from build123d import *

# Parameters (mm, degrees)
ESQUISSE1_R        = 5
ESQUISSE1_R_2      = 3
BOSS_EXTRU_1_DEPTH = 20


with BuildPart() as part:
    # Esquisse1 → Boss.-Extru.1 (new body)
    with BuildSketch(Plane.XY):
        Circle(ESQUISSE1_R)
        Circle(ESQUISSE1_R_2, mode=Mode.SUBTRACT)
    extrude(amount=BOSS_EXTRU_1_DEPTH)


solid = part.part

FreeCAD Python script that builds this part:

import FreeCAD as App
import Part
import Sketcher

V = App.Vector

doc = App.newDocument("Part")
body = doc.addObject("PartDesign::Body", "Body")

sketch1 = body.newObject("Sketcher::SketchObject", "Sketch")
sketch1.AttachmentSupport = (doc.getObject("XY_Plane"), [""])
sketch1.MapMode = "FlatFace"
sketch1.addGeometry(Part.Circle(V(0, 0, 0), V(0, 0, 1), 5), False)
sketch1.addGeometry(Part.Circle(V(0, 0, 0), V(0, 0, 1), 3), False)
sketch1.addConstraint(Sketcher.Constraint("Coincident", 0, 3, -1, 1))
sketch1.addConstraint(Sketcher.Constraint("Coincident", 1, 3, -1, 1))
sketch1.addConstraint(Sketcher.Constraint("Diameter", 0, 10.0))
sketch1.addConstraint(Sketcher.Constraint("Diameter", 1, 6.0))
pad1 = body.newObject("PartDesign::Pad", "Pad")
pad1.Profile = sketch1
pad1.Length = 20

doc.recompute()
